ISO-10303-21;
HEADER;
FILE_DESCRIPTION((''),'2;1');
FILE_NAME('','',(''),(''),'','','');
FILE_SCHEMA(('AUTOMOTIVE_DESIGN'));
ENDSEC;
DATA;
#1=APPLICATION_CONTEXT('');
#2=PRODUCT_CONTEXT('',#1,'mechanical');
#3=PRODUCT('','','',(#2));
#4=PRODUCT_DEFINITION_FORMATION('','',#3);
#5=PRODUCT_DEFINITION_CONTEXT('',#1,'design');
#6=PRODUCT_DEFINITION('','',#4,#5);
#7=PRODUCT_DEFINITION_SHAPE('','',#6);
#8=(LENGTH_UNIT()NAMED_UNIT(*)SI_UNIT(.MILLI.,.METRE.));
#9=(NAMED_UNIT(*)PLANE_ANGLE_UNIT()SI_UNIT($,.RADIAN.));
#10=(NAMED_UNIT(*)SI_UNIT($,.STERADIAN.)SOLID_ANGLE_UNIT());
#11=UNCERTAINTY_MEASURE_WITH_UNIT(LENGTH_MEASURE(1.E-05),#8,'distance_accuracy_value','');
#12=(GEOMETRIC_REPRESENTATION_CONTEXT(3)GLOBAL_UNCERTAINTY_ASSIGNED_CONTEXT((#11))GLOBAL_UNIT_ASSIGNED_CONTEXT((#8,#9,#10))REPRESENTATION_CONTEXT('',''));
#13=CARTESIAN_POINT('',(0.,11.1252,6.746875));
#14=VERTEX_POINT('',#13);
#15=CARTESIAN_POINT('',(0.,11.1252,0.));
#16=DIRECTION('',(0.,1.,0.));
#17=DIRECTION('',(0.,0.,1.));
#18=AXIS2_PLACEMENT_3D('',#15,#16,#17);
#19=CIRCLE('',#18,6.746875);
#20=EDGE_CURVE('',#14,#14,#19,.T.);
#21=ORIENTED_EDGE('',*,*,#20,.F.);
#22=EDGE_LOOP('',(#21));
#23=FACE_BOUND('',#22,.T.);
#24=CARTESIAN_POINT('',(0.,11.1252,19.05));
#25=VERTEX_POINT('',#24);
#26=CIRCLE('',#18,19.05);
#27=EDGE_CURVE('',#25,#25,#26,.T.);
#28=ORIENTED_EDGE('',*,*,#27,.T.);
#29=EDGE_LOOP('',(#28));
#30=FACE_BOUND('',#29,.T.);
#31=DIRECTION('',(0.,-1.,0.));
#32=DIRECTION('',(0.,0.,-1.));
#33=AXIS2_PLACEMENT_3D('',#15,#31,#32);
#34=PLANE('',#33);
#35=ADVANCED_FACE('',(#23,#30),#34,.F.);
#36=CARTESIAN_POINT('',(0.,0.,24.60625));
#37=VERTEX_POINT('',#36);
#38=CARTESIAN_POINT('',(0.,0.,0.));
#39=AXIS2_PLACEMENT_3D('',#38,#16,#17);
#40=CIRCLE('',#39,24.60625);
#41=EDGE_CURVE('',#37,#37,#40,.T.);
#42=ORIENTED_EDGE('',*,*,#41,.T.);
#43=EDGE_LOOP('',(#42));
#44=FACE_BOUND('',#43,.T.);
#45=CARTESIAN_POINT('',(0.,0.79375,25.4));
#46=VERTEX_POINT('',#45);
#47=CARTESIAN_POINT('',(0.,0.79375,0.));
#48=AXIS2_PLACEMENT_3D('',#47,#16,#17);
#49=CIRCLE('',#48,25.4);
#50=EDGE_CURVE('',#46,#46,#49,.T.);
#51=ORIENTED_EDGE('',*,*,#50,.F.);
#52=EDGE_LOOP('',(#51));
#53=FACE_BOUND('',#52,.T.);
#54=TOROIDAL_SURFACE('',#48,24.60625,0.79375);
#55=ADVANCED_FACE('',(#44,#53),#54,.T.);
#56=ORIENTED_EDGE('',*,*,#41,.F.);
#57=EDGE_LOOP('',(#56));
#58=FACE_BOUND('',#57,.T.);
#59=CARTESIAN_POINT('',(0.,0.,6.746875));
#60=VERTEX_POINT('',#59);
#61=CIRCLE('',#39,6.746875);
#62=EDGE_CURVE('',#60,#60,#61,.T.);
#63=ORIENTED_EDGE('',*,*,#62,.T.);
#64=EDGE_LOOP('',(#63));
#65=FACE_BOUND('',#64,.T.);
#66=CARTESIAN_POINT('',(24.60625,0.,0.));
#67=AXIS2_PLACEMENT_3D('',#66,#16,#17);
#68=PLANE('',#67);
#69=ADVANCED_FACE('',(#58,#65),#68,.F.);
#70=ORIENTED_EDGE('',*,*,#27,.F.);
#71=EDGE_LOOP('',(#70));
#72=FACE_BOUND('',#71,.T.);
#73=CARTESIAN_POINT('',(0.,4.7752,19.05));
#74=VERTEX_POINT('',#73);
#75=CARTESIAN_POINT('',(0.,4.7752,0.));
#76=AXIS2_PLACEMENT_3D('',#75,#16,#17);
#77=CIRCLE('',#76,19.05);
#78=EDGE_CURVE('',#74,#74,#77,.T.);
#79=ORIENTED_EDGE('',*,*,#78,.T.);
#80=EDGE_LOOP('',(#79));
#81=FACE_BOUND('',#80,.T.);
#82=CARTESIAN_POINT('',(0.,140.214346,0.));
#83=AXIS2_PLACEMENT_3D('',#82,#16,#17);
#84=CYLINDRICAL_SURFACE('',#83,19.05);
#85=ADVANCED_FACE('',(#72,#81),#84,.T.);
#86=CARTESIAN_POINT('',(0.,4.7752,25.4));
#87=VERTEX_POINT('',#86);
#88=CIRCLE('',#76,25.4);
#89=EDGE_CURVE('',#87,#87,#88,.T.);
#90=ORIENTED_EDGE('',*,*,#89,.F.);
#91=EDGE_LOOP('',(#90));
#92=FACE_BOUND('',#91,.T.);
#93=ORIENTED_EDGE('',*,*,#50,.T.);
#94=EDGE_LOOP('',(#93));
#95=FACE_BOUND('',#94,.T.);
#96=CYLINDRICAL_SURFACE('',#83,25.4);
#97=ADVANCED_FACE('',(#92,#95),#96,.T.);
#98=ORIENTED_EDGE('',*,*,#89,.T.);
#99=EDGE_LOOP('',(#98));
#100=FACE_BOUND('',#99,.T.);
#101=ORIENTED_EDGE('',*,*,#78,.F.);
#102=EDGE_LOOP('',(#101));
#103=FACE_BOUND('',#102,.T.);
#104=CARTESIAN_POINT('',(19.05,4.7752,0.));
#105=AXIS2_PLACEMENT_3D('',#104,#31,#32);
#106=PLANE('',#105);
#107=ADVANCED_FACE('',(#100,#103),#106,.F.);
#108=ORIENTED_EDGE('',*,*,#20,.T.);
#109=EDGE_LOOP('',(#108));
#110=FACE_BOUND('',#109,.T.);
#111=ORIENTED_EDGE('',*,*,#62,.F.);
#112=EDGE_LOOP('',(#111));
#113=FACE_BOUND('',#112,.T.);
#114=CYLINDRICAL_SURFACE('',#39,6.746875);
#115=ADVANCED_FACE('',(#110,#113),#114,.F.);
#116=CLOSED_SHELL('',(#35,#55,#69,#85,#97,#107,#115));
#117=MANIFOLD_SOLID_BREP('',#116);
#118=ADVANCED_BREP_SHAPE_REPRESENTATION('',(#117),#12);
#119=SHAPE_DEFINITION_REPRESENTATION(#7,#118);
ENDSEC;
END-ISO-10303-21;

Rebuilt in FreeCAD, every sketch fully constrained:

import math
import FreeCAD as App
import Part
import Sketcher

V = App.Vector
Q = App.Units.Quantity

doc = App.newDocument("Part")
body = doc.addObject("PartDesign::Body", "Body")

# Sketch on XY plane
sketch1 = body.newObject("Sketcher::SketchObject", "Sketch")
sketch1.AttachmentSupport = (doc.getObject("XY_Plane"), [""])
sketch1.MapMode = "FlatFace"
sketch1.addGeometry(Part.LineSegment(V(0, 11.1, 0), V(0, 0, 0)), False)
sketch1.addGeometry(Part.LineSegment(V(0, 0, 0), V(24.6, 0, 0)), False)
sketch1.addGeometry(Part.ArcOfCircle(Part.Circle(V(24.6, 0.8, 0), V(0, 0, 1), 0.8), math.radians(-90), math.radians(0)), False)
sketch1.addGeometry(Part.LineSegment(V(25.4, 0.8, 0), V(25.4, 4.8, 0)), False)
sketch1.addGeometry(Part.LineSegment(V(25.4, 4.8, 0), V(19.1, 4.8, 0)), False)
sketch1.addGeometry(Part.LineSegment(V(19.1, 4.8, 0), V(19.1, 11.1, 0)), False)
sketch1.addGeometry(Part.LineSegment(V(19.1, 11.1, 0), V(0, 11.1, 0)), False)
sketch1.addConstraint(Sketcher.Constraint("Coincident", 0, 2, 1, 1))
sketch1.addConstraint(Sketcher.Constraint("Tangent", 1, 2, 2, 1))
sketch1.addConstraint(Sketcher.Constraint("Tangent", 2, 2, 3, 1))
sketch1.addConstraint(Sketcher.Constraint("Coincident", 3, 2, 4, 1))
sketch1.addConstraint(Sketcher.Constraint("Coincident", 4, 2, 5, 1))
sketch1.addConstraint(Sketcher.Constraint("Coincident", 5, 2, 6, 1))
sketch1.addConstraint(Sketcher.Constraint("Coincident", 6, 2, 0, 1))
sketch1.addConstraint(Sketcher.Constraint("Vertical", 0))
sketch1.addConstraint(Sketcher.Constraint("Horizontal", 1))
sketch1.addConstraint(Sketcher.Constraint("Vertical", 3))
sketch1.addConstraint(Sketcher.Constraint("Horizontal", 4))
sketch1.addConstraint(Sketcher.Constraint("Vertical", 5))
sketch1.addConstraint(Sketcher.Constraint("Horizontal", 6))
sketch1.addConstraint(Sketcher.Constraint("Coincident", 0, 2, -1, 1))
sketch1.addConstraint(Sketcher.Constraint("Equal", 4, 5))
sketch1.addConstraint(Sketcher.Constraint("DistanceX", -1, 1, 2, 2, Q("1 in")))
sketch1.addConstraint(Sketcher.Constraint("Radius", 2, Q("0.03125 in")))
sketch1.addConstraint(Sketcher.Constraint("DistanceX", 4, 2, 4, 1, Q("0.25 in")))
sketch1.addConstraint(Sketcher.Constraint("DistanceY", 0, 2, 0, 1, Q("0.438 in")))
revolution = body.newObject("PartDesign::Revolution", "Revolution")
revolution.Profile = sketch1
revolution.ReferenceAxis = (sketch1, ["V_Axis"])
revolution.Angle = 360

# Sketch on XZ plane
sketch2 = body.newObject("Sketcher::SketchObject", "Sketch001")
sketch2.AttachmentSupport = (doc.getObject("XZ_Plane"), [""])
sketch2.MapMode = "FlatFace"
sketch2.AttachmentOffset = App.Placement(V(0, 0, -0.438 * 25.4), App.Rotation())
sketch2.addGeometry(Part.Circle(V(0, 0, 0), V(0, 0, 1), 7), False)
sketch2.addConstraint(Sketcher.Constraint("Coincident", 0, 3, -1, 1))
sketch2.addConstraint(Sketcher.Constraint("Diameter", 0, Q("0.53125 in")))
pocket1 = body.newObject("PartDesign::Pocket", "Pocket")
pocket1.Profile = sketch2
pocket1.Type = "ThroughAll"
pocket1.Reversed = True

doc.recompute()
